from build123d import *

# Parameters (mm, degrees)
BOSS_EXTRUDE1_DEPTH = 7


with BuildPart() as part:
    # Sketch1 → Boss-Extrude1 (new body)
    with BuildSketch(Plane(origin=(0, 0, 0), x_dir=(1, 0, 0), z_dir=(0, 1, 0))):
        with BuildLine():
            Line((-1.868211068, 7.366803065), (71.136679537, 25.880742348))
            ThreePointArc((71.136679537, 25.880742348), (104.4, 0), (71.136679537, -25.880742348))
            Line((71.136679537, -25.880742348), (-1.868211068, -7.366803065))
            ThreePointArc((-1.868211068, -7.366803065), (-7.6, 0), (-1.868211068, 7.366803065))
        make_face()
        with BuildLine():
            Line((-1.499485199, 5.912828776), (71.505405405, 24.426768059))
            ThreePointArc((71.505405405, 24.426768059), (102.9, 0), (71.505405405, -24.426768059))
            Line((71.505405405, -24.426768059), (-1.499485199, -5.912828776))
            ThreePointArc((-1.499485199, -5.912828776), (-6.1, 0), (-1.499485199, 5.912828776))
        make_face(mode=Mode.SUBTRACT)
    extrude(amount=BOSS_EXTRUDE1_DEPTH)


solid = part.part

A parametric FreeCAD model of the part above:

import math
import FreeCAD as App
import Part
import Sketcher
from FreeCAD import Vector
Q = App.Units.Quantity

doc = App.newDocument("Part")
body = doc.addObject("PartDesign::Body", "Body")

# Sketch on XZ plane
sketch1 = body.newObject("Sketcher::SketchObject", "Sketch")
sketch1.AttachmentSupport = (doc.getObject("XZ_Plane"), [""])
sketch1.MapMode = "FlatFace"
sketch1.addGeometry(Part.LineSegment(Vector(71, -26, 0), Vector(-2, -7, 0)), False)
sketch1.addGeometry(Part.ArcOfCircle(Part.Circle(Vector(0, 0, 0), Vector(0, 0, 1), 8), math.radians(104), math.radians(256)), False)
sketch1.addGeometry(Part.LineSegment(Vector(-2, 7, 0), Vector(71, 26, 0)), False)
sketch1.addGeometry(Part.ArcOfCircle(Part.Circle(Vector(78, 0, 0), Vector(0, 0, 1), 27), math.radians(-104), math.radians(104)), False)
sketch1.addGeometry(Part.LineSegment(Vector(-1, -6, 0), Vector(72, -24, 0)), False)
sketch1.addGeometry(Part.ArcOfCircle(Part.Circle(Vector(78, 0, 0), Vector(0, 0, 1), 25), math.radians(-104), math.radians(104)), False)
sketch1.addGeometry(Part.LineSegment(Vector(72, 24, 0), Vector(-1, 6, 0)), False)
sketch1.addGeometry(Part.ArcOfCircle(Part.Circle(Vector(0, 0, 0), Vector(0, 0, 1), 6), math.radians(104), math.radians(256)), False)
sketch1.addConstraint(Sketcher.Constraint("Tangent", 0, 2, 1, 2))
sketch1.addConstraint(Sketcher.Constraint("Tangent", 1, 1, 2, 1))
sketch1.addConstraint(Sketcher.Constraint("Tangent", 2, 2, 3, 2))
sketch1.addConstraint(Sketcher.Constraint("Tangent", 3, 1, 0, 1))
sketch1.addConstraint(Sketcher.Constraint("Tangent", 4, 2, 5, 1))
sketch1.addConstraint(Sketcher.Constraint("Tangent", 5, 2, 6, 1))
sketch1.addConstraint(Sketcher.Constraint("Tangent", 6, 2, 7, 1))
sketch1.addConstraint(Sketcher.Constraint("Tangent", 7, 2, 4, 1))
sketch1.addConstraint(Sketcher.Constraint("Coincident", 1, 3, -1, 1))
sketch1.addConstraint(Sketcher.Constraint("Coincident", 7, 3, -1, 1))
sketch1.addConstraint(Sketcher.Constraint("Coincident", 5, 3, 3, 3))
sketch1.addConstraint(Sketcher.Constraint("PointOnObject", 3, 3, -1))
sketch1.addConstraint(Sketcher.Constraint("Parallel", 0, 4))
sketch1.addConstraint(Sketcher.Constraint("Radius", 1, Q("7.6 mm")))
sketch1.addConstraint(Sketcher.Constraint("Radius", 3, Q("26.7 mm")))
sketch1.addConstraint(Sketcher.Constraint("Radius", 5, Q("25.2 mm")))
sketch1.addConstraint(Sketcher.Constraint("DistanceX", -1, 1, 3, 3, Q("77.7 mm")))
pad1 = body.newObject("PartDesign::Pad", "Pad")
pad1.Profile = sketch1
pad1.Length = 7
pad1.Reversed = True

doc.recompute()
